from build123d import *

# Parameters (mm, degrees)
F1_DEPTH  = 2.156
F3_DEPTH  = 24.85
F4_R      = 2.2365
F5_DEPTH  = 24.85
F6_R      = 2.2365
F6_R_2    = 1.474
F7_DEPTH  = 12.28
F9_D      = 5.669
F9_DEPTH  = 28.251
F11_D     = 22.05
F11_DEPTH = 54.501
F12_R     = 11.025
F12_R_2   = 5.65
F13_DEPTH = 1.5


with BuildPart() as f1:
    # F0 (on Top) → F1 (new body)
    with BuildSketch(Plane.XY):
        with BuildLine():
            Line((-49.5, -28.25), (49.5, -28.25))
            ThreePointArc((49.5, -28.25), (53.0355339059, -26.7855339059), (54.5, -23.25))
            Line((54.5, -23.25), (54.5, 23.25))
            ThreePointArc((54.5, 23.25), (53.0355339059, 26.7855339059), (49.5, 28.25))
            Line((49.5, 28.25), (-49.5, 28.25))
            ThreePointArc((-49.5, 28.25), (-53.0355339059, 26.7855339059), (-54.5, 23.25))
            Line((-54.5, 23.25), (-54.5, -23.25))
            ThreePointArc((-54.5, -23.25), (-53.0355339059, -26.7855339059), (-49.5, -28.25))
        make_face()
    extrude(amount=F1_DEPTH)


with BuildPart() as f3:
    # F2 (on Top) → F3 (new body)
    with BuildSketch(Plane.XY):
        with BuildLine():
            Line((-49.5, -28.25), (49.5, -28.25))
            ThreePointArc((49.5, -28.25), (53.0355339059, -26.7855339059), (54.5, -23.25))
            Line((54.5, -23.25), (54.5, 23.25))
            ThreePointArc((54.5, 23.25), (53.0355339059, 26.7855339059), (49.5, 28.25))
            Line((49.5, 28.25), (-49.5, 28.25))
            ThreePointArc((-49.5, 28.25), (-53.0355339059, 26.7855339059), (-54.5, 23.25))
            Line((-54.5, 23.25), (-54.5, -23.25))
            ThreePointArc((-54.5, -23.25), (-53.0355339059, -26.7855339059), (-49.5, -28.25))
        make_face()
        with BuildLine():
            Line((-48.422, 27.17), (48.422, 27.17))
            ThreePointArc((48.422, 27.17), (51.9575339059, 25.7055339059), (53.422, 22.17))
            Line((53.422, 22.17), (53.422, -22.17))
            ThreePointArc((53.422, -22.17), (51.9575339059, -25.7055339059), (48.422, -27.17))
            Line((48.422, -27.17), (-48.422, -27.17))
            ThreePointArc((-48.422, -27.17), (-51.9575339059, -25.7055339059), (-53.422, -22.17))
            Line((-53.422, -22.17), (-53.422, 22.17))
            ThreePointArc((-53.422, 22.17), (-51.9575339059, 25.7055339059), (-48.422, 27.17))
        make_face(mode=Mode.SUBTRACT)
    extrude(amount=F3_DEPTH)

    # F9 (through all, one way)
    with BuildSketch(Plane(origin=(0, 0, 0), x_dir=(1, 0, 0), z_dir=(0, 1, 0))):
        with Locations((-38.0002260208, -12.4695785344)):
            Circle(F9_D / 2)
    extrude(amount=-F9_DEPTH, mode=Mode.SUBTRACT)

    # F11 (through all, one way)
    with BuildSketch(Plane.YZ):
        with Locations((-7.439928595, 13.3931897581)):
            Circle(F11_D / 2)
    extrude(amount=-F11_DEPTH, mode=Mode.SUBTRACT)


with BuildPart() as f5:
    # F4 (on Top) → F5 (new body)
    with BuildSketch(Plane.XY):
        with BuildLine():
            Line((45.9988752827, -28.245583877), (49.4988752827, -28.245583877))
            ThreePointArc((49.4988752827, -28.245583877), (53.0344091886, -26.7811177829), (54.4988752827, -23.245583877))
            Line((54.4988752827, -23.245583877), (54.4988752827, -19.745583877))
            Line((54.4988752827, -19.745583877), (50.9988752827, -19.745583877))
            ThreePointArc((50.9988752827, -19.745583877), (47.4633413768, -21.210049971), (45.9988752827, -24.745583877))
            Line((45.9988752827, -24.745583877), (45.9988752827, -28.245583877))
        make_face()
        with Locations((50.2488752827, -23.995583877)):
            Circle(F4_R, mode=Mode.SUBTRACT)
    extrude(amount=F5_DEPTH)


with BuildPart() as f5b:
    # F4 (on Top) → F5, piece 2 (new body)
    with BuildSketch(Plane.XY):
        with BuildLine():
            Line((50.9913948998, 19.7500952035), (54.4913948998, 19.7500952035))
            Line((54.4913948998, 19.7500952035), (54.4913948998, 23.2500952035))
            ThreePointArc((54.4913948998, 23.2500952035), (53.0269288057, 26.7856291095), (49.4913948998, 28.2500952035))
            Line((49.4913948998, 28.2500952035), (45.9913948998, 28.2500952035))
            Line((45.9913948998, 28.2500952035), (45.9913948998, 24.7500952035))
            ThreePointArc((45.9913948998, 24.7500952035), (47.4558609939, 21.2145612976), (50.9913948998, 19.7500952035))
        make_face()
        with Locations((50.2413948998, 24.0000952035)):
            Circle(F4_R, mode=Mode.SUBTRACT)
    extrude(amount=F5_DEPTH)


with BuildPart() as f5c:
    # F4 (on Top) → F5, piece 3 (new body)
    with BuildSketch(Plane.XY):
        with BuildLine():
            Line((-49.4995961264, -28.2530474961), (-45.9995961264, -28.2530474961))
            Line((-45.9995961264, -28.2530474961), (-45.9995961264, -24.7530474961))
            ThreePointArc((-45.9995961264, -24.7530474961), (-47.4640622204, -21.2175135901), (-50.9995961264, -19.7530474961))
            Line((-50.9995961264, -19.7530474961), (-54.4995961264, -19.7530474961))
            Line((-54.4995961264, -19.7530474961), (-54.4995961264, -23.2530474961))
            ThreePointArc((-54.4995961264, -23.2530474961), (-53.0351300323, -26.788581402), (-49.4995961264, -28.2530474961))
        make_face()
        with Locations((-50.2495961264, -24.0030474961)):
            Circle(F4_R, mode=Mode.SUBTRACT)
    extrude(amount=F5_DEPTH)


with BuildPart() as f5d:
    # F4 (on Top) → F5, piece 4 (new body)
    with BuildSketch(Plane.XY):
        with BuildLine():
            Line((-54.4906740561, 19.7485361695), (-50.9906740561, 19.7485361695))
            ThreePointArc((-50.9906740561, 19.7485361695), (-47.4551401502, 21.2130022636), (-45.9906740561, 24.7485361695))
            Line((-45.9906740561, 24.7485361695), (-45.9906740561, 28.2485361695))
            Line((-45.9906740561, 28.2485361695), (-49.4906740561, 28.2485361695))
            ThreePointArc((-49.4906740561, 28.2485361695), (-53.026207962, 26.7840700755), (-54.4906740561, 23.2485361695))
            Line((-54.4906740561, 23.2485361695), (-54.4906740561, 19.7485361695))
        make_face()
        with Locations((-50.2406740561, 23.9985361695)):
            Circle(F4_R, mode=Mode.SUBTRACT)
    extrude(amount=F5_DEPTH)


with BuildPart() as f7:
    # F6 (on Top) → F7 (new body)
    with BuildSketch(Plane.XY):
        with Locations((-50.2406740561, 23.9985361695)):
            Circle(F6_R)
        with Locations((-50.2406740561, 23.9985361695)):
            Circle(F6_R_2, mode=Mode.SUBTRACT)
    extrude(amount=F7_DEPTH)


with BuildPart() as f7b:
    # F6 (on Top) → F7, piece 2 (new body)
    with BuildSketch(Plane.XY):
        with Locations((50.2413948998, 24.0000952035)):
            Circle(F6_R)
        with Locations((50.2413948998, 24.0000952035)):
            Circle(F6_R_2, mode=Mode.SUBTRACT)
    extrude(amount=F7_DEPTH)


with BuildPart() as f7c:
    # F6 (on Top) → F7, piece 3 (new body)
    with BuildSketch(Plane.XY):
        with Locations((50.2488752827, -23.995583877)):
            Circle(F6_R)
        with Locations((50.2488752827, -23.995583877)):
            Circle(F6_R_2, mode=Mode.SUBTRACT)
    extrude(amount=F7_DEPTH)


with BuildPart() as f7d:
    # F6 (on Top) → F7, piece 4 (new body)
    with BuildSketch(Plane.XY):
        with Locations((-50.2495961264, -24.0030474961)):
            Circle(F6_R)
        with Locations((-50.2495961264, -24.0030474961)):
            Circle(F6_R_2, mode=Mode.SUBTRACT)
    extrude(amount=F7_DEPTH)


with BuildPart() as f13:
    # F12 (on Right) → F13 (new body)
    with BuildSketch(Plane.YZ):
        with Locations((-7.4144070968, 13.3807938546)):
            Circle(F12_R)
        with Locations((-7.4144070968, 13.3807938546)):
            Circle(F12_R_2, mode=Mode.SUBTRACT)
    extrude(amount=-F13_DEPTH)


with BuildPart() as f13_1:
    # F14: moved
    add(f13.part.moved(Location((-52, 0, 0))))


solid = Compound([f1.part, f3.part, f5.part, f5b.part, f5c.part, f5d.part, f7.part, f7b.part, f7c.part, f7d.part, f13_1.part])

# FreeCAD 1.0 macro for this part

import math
import FreeCAD as App
import Part
import Sketcher
from FreeCAD import Vector
Q = App.Units.Quantity

doc = App.newDocument("Part")
body = doc.addObject("PartDesign::Body", "Body")

sketch1 = body.newObject("Sketcher::SketchObject", "Sketch")
sketch1.AttachmentSupport = (doc.getObject("XY_Plane"), [""])
sketch1.MapMode = "FlatFace"
sketch1.addGeometry([
    Part.LineSegment(Vector(-49.5, -28.25, 0), Vector(49.5, -28.25, 0)),
    Part.ArcOfCircle(Part.Circle(Vector(49.5, -23.25, 0), Vector(0, 0, 1), 5), math.radians(-90), math.radians(0)),
    Part.LineSegment(Vector(54.5, -23.25, 0), Vector(54.5, 23.25, 0)),
    Part.ArcOfCircle(Part.Circle(Vector(49.5, 23.25, 0), Vector(0, 0, 1), 5), math.radians(0), math.radians(90)),
    Part.LineSegment(Vector(49.5, 28.25, 0), Vector(-49.5, 28.25, 0)),
    Part.ArcOfCircle(Part.Circle(Vector(-49.5, 23.25, 0), Vector(0, 0, 1), 5), math.radians(90), math.radians(180)),
    Part.LineSegment(Vector(-54.5, 23.25, 0), Vector(-54.5, -23.25, 0)),
    Part.ArcOfCircle(Part.Circle(Vector(-49.5, -23.25, 0), Vector(0, 0, 1), 5), math.radians(180), math.radians(270)),
], False)
sketch1.addConstraint([
    Sketcher.Constraint("Tangent", 0, 2, 1, 1),
    Sketcher.Constraint("Tangent", 1, 2, 2, 1),
    Sketcher.Constraint("Tangent", 2, 2, 3, 1),
    Sketcher.Constraint("Tangent", 3, 2, 4, 1),
    Sketcher.Constraint("Tangent", 4, 2, 5, 1),
    Sketcher.Constraint("Tangent", 5, 2, 6, 1),
    Sketcher.Constraint("Tangent", 6, 2, 7, 1),
    Sketcher.Constraint("Tangent", 7, 2, 0, 1),
    Sketcher.Constraint("Horizontal", 0),
    Sketcher.Constraint("Vertical", 2),
    Sketcher.Constraint("Horizontal", 4),
    Sketcher.Constraint("Vertical", 6),
    Sketcher.Constraint("Equal", 1, 3),
    Sketcher.Constraint("Equal", 3, 5),
    Sketcher.Constraint("Equal", 5, 7),
    Sketcher.Constraint("Symmetric", 1, 3, 5, 3, -1, 1),
    Sketcher.Constraint("Radius", 1, Q("5 mm")),
    Sketcher.Constraint("DistanceX", 0, 1, 0, 2, Q("99 mm")),
    Sketcher.Constraint("DistanceY", 2, 1, 2, 2, Q("46.5 mm")),
])
pad1 = body.newObject("PartDesign::Pad", "Pad")
pad1.Profile = sketch1
pad1.Length = 2.156
body2 = doc.addObject("PartDesign::Body", "Body001")

sketch2 = body2.newObject("Sketcher::SketchObject", "Sketch001")
sketch2.AttachmentSupport = (doc.getObject("XY_Plane001"), [""])
sketch2.MapMode = "FlatFace"
sketch2.addGeometry([
    Part.LineSegment(Vector(-49.5, -28.25, 0), Vector(49.5, -28.25, 0)),
    Part.ArcOfCircle(Part.Circle(Vector(49.5, -23.25, 0), Vector(0, 0, 1), 5), math.radians(-90), math.radians(0)),
    Part.LineSegment(Vector(54.5, -23.25, 0), Vector(54.5, 23.25, 0)),
    Part.ArcOfCircle(Part.Circle(Vector(49.5, 23.25, 0), Vector(0, 0, 1), 5), math.radians(0), math.radians(90)),
    Part.LineSegment(Vector(49.5, 28.25, 0), Vector(-49.5, 28.25, 0)),
    Part.ArcOfCircle(Part.Circle(Vector(-49.5, 23.25, 0), Vector(0, 0, 1), 5), math.radians(90), math.radians(180)),
    Part.LineSegment(Vector(-54.5, 23.25, 0), Vector(-54.5, -23.25, 0)),
    Part.ArcOfCircle(Part.Circle(Vector(-49.5, -23.25, 0), Vector(0, 0, 1), 5), math.radians(180), math.radians(270)),
    Part.ArcOfCircle(Part.Circle(Vector(-48.422, 22.17, 0), Vector(0, 0, 1), 5), math.radians(90), math.radians(180)),
    Part.LineSegment(Vector(-48.422, 27.17, 0), Vector(48.422, 27.17, 0)),
    Part.ArcOfCircle(Part.Circle(Vector(48.422, 22.17, 0), Vector(0, 0, 1), 5), math.radians(0), math.radians(90)),
    Part.LineSegment(Vector(53.422, 22.17, 0), Vector(53.422, -22.17, 0)),
    Part.ArcOfCircle(Part.Circle(Vector(48.422, -22.17, 0), Vector(0, 0, 1), 5), math.radians(-90), math.radians(0)),
    Part.LineSegment(Vector(48.422, -27.17, 0), Vector(-48.422, -27.17, 0)),
    Part.ArcOfCircle(Part.Circle(Vector(-48.422, -22.17, 0), Vector(0, 0, 1), 5), math.radians(180), math.radians(270)),
    Part.LineSegment(Vector(-53.422, -22.17, 0), Vector(-53.422, 22.17, 0)),
], False)
sketch2.addConstraint([
    Sketcher.Constraint("Tangent", 0, 2, 1, 1),
    Sketcher.Constraint("Tangent", 1, 2, 2, 1),
    Sketcher.Constraint("Tangent", 2, 2, 3, 1),
    Sketcher.Constraint("Tangent", 3, 2, 4, 1),
    Sketcher.Constraint("Tangent", 4, 2, 5, 1),
    Sketcher.Constraint("Tangent", 5, 2, 6, 1),
    Sketcher.Constraint("Tangent", 6, 2, 7, 1),
    Sketcher.Constraint("Tangent", 7, 2, 0, 1),
    Sketcher.Constraint("Tangent", 8, 1, 9, 1),
    Sketcher.Constraint("Tangent", 9, 2, 10, 2),
    Sketcher.Constraint("Tangent", 10, 1, 11, 1),
    Sketcher.Constraint("Tangent", 11, 2, 12, 2),
    Sketcher.Constraint("Tangent", 12, 1, 13, 1),
    Sketcher.Constraint("Tangent", 13, 2, 14, 2),
    Sketcher.Constraint("Tangent", 14, 1, 15, 1),
    Sketcher.Constraint("Tangent", 15, 2, 8, 2),
    Sketcher.Constraint("Horizontal", 0),
    Sketcher.Constraint("Vertical", 2),
    Sketcher.Constraint("Horizontal", 4),
    Sketcher.Constraint("Vertical", 6),
    Sketcher.Constraint("Horizontal", 9),
    Sketcher.Constraint("Vertical", 11),
    Sketcher.Constraint("Horizontal", 13),
    Sketcher.Constraint("Vertical", 15),
    Sketcher.Constraint("Equal", 1, 3),
    Sketcher.Constraint("Equal", 3, 5),
    Sketcher.Constraint("Equal", 5, 7),
    Sketcher.Constraint("Equal", 7, 8),
    Sketcher.Constraint("Equal", 8, 10),
    Sketcher.Constraint("Equal", 10, 12),
    Sketcher.Constraint("Equal", 12, 14),
    Sketcher.Constraint("Symmetric", 1, 3, 5, 3, -1, 1),
    Sketcher.Constraint("Symmetric", 8, 3, 12, 3, -1, 1),
    Sketcher.Constraint("Radius", 1, Q("5 mm")),
    Sketcher.Constraint("DistanceX", 0, 1, 0, 2, Q("99 mm")),
    Sketcher.Constraint("DistanceY", 2, 1, 2, 2, Q("46.5 mm")),
    Sketcher.Constraint("DistanceY", 11, 2, 11, 1, Q("44.34 mm")),
    Sketcher.Constraint("DistanceX", 9, 1, 9, 2, Q("96.844 mm")),
])
pad2 = body2.newObject("PartDesign::Pad", "Pad001")
pad2.Profile = sketch2
pad2.Length = 24.85

sketch3 = body2.newObject("Sketcher::SketchObject", "Sketch002")
sketch3.AttachmentSupport = (doc.getObject("XZ_Plane001"), [""])
sketch3.MapMode = "FlatFace"
sketch3.addGeometry(Part.Circle(Vector(-38.000226, 12.469579, 0), Vector(0, 0, 1), 2.8345), False)
sketch3.addConstraint([
    Sketcher.Constraint("Diameter", 0, Q("5.669 mm")),
    Sketcher.Constraint("DistanceY", -1, 1, 0, 3, Q("12.469579 mm")),
    Sketcher.Constraint("DistanceX", 0, 3, -1, 1, Q("38.000226 mm")),
])
pocket1 = body2.newObject("PartDesign::Pocket", "Pocket")
pocket1.Profile = sketch3
pocket1.Type = "ThroughAll"
pocket1.Reversed = True

sketch4 = body2.newObject("Sketcher::SketchObject", "Sketch003")
sketch4.AttachmentSupport = (doc.getObject("YZ_Plane001"), [""])
sketch4.MapMode = "FlatFace"
sketch4.addGeometry(Part.Circle(Vector(-7.439929, 13.39319, 0), Vector(0, 0, 1), 11.025), False)
sketch4.addConstraint([
    Sketcher.Constraint("Diameter", 0, Q("22.05 mm")),
    Sketcher.Constraint("DistanceX", 0, 3, -1, 1, Q("7.439929 mm")),
    Sketcher.Constraint("DistanceY", -1, 1, 0, 3, Q("13.39319 mm")),
])
pocket2 = body2.newObject("PartDesign::Pocket", "Pocket001")
pocket2.Profile = sketch4
pocket2.Type = "ThroughAll"
body3 = doc.addObject("PartDesign::Body", "Body002")

sketch5 = body3.newObject("Sketcher::SketchObject", "Sketch004")
sketch5.AttachmentSupport = (doc.getObject("XY_Plane002"), [""])
sketch5.MapMode = "FlatFace"
sketch5.addGeometry([
    Part.LineSegment(Vector(45.998875, -28.245584, 0), Vector(49.498875, -28.245584, 0)),
    Part.ArcOfCircle(Part.Circle(Vector(49.498875, -23.245584, 0), Vector(0, 0, 1), 5), math.radians(-90), math.radians(0)),
    Part.LineSegment(Vector(54.498875, -23.245584, 0), Vector(54.498875, -19.745584, 0)),
    Part.LineSegment(Vector(54.498875, -19.745584, 0), Vector(50.998875, -19.745584, 0)),
    Part.ArcOfCircle(Part.Circle(Vector(50.998875, -24.745584, 0), Vector(0, 0, 1), 5), math.radians(90), math.radians(180)),
    Part.LineSegment(Vector(45.998875, -24.745584, 0), Vector(45.998875, -28.245584, 0)),
    Part.Circle(Vector(50.248875, -23.995584, 0), Vector(0, 0, 1), 2.2365),
], False)
sketch5.addConstraint([
    Sketcher.Constraint("Tangent", 0, 2, 1, 1),
    Sketcher.Constraint("Tangent", 1, 2, 2, 1),
    Sketcher.Constraint("Coincident", 2, 2, 3, 1),
    Sketcher.Constraint("Tangent", 3, 2, 4, 1),
    Sketcher.Constraint("Tangent", 4, 2, 5, 1),
    Sketcher.Constraint("Coincident", 5, 2, 0, 1),
    Sketcher.Constraint("Horizontal", 0),
    Sketcher.Constraint("Vertical", 2),
    Sketcher.Constraint("Horizontal", 3),
    Sketcher.Constraint("Vertical", 5),
    Sketcher.Constraint("Equal", 1, 4),
    Sketcher.Constraint("Equal", 3, 2),
    Sketcher.Constraint("Radius", 1, Q("5 mm")),
    Sketcher.Constraint("Diameter", 6, Q("4.473 mm")),
    Sketcher.Constraint("DistanceX", 0, 1, 0, 2, Q("3.5 mm")),
    Sketcher.Constraint("DistanceX", 1, 3, 6, 3, Q("0.75 mm")),
    Sketcher.Constraint("DistanceY", 6, 3, 1, 3, Q("0.75 mm")),
    Sketcher.Constraint("DistanceX", -1, 1, 1, 3, Q("49.498875 mm")),
    Sketcher.Constraint("DistanceY", 1, 3, -1, 1, Q("23.245584 mm")),
])
pad3 = body3.newObject("PartDesign::Pad", "Pad002")
pad3.Profile = sketch5
pad3.Length = 24.85
body4 = doc.addObject("PartDesign::Body", "Body003")

sketch6 = body4.newObject("Sketcher::SketchObject", "Sketch005")
sketch6.AttachmentSupport = (doc.getObject("XY_Plane003"), [""])
sketch6.MapMode = "FlatFace"
sketch6.addGeometry([
    Part.LineSegment(Vector(50.991395, 19.750095, 0), Vector(54.491395, 19.750095, 0)),
    Part.LineSegment(Vector(54.491395, 19.750095, 0), Vector(54.491395, 23.250095, 0)),
    Part.ArcOfCircle(Part.Circle(Vector(49.491395, 23.250095, 0), Vector(0, 0, 1), 5), math.radians(0), math.radians(90)),
    Part.LineSegment(Vector(49.491395, 28.250095, 0), Vector(45.991395, 28.250095, 0)),
    Part.LineSegment(Vector(45.991395, 28.250095, 0), Vector(45.991395, 24.750095, 0)),
    Part.ArcOfCircle(Part.Circle(Vector(50.991395, 24.750095, 0), Vector(0, 0, 1), 5), math.radians(-180), math.radians(-90)),
    Part.Circle(Vector(50.241395, 24.000095, 0), Vector(0, 0, 1), 2.2365),
], False)
sketch6.addConstraint([
    Sketcher.Constraint("Coincident", 0, 2, 1, 1),
    Sketcher.Constraint("Tangent", 1, 2, 2, 1),
    Sketcher.Constraint("Tangent", 2, 2, 3, 1),
    Sketcher.Constraint("Coincident", 3, 2, 4, 1),
    Sketcher.Constraint("Tangent", 4, 2, 5, 1),
    Sketcher.Constraint("Tangent", 5, 2, 0, 1),
    Sketcher.Constraint("Horizontal", 0),
    Sketcher.Constraint("Vertical", 1),
    Sketcher.Constraint("Horizontal", 3),
    Sketcher.Constraint("Vertical", 4),
    Sketcher.Constraint("Equal", 2, 5),
    Sketcher.Constraint("Equal", 3, 1),
    Sketcher.Constraint("Radius", 2, Q("5 mm")),
    Sketcher.Constraint("Diameter", 6, Q("4.473 mm")),
    Sketcher.Constraint("DistanceX", 0, 1, 0, 2, Q("3.5 mm")),
    Sketcher.Constraint("DistanceX", 2, 3, 6, 3, Q("0.75 mm")),
    Sketcher.Constraint("DistanceY", 2, 3, 6, 3, Q("0.75 mm")),
    Sketcher.Constraint("DistanceX", -1, 1, 2, 3, Q("49.491395 mm")),
    Sketcher.Constraint("DistanceY", -1, 1, 2, 3, Q("23.250095 mm")),
])
pad4 = body4.newObject("PartDesign::Pad", "Pad003")
pad4.Profile = sketch6
pad4.Length = 24.85
body5 = doc.addObject("PartDesign::Body", "Body004")

sketch7 = body5.newObject("Sketcher::SketchObject", "Sketch006")
sketch7.AttachmentSupport = (doc.getObject("XY_Plane004"), [""])
sketch7.MapMode = "FlatFace"
sketch7.addGeometry([
    Part.LineSegment(Vector(-49.499596, -28.253047, 0), Vector(-45.999596, -28.253047, 0)),
    Part.LineSegment(Vector(-45.999596, -28.253047, 0), Vector(-45.999596, -24.753047, 0)),
    Part.ArcOfCircle(Part.Circle(Vector(-50.999596, -24.753047, 0), Vector(0, 0, 1), 5), math.radians(0), math.radians(90)),
    Part.LineSegment(Vector(-50.999596, -19.753047, 0), Vector(-54.499596, -19.753047, 0)),
    Part.LineSegment(Vector(-54.499596, -19.753047, 0), Vector(-54.499596, -23.253047, 0)),
    Part.ArcOfCircle(Part.Circle(Vector(-49.499596, -23.253047, 0), Vector(0, 0, 1), 5), math.radians(180), math.radians(270)),
    Part.Circle(Vector(-50.249596, -24.003047, 0), Vector(0, 0, 1), 2.2365),
], False)
sketch7.addConstraint([
    Sketcher.Constraint("Coincident", 0, 2, 1, 1),
    Sketcher.Constraint("Tangent", 1, 2, 2, 1),
    Sketcher.Constraint("Tangent", 2, 2, 3, 1),
    Sketcher.Constraint("Coincident", 3, 2, 4, 1),
    Sketcher.Constraint("Tangent", 4, 2, 5, 1),
    Sketcher.Constraint("Tangent", 5, 2, 0, 1),
    Sketcher.Constraint("Horizontal", 0),
    Sketcher.Constraint("Vertical", 1),
    Sketcher.Constraint("Horizontal", 3),
    Sketcher.Constraint("Vertical", 4),
    Sketcher.Constraint("Equal", 2, 5),
    Sketcher.Constraint("Equal", 3, 1),
    Sketcher.Constraint("Radius", 2, Q("5 mm")),
    Sketcher.Constraint("Diameter", 6, Q("4.473 mm")),
    Sketcher.Constraint("DistanceX", 0, 1, 0, 2, Q("3.5 mm")),
    Sketcher.Constraint("DistanceX", 2, 3, 6, 3, Q("0.75 mm")),
    Sketcher.Constraint("DistanceY", 2, 3, 6, 3, Q("0.75 mm")),
    Sketcher.Constraint("DistanceX", 2, 3, -1, 1, Q("50.999596 mm")),
    Sketcher.Constraint("DistanceY", 2, 3, -1, 1, Q("24.753047 mm")),
])
pad5 = body5.newObject("PartDesign::Pad", "Pad004")
pad5.Profile = sketch7
pad5.Length = 24.85
body6 = doc.addObject("PartDesign::Body", "Body005")

sketch8 = body6.newObject("Sketcher::SketchObject", "Sketch007")
sketch8.AttachmentSupport = (doc.getObject("XY_Plane005"), [""])
sketch8.MapMode = "FlatFace"
sketch8.addGeometry([
    Part.LineSegment(Vector(-54.490674, 19.748536, 0), Vector(-50.990674, 19.748536, 0)),
    Part.ArcOfCircle(Part.Circle(Vector(-50.990674, 24.748536, 0), Vector(0, 0, 1), 5), math.radians(-90), math.radians(0)),
    Part.LineSegment(Vector(-45.990674, 24.748536, 0), Vector(-45.990674, 28.248536, 0)),
    Part.LineSegment(Vector(-45.990674, 28.248536, 0), Vector(-49.490674, 28.248536, 0)),
    Part.ArcOfCircle(Part.Circle(Vector(-49.490674, 23.248536, 0), Vector(0, 0, 1), 5), math.radians(90), math.radians(180)),
    Part.LineSegment(Vector(-54.490674, 23.248536, 0), Vector(-54.490674, 19.748536, 0)),
    Part.Circle(Vector(-50.240674, 23.998536, 0), Vector(0, 0, 1), 2.2365),
], False)
sketch8.addConstraint([
    Sketcher.Constraint("Tangent", 0, 2, 1, 1),
    Sketcher.Constraint("Tangent", 1, 2, 2, 1),
    Sketcher.Constraint("Coincident", 2, 2, 3, 1),
    Sketcher.Constraint("Tangent", 3, 2, 4, 1),
    Sketcher.Constraint("Tangent", 4, 2, 5, 1),
    Sketcher.Constraint("Coincident", 5, 2, 0, 1),
    Sketcher.Constraint("Horizontal", 0),
    Sketcher.Constraint("Vertical", 2),
    Sketcher.Constraint("Horizontal", 3),
    Sketcher.Constraint("Vertical", 5),
    Sketcher.Constraint("Equal", 1, 4),
    Sketcher.Constraint("Equal", 3, 2),
    Sketcher.Constraint("Radius", 1, Q("5 mm")),
    Sketcher.Constraint("Diameter", 6, Q("4.473 mm")),
    Sketcher.Constraint("DistanceX", 0, 1, 0, 2, Q("3.5 mm")),
    Sketcher.Constraint("DistanceX", 6, 3, 4, 3, Q("0.75 mm")),
    Sketcher.Constraint("DistanceY", 4, 3, 6, 3, Q("0.75 mm")),
    Sketcher.Constraint("DistanceX", 1, 3, -1, 1, Q("50.990674 mm")),
    Sketcher.Constraint("DistanceY", -1, 1, 1, 3, Q("24.748536 mm")),
])
pad6 = body6.newObject("PartDesign::Pad", "Pad005")
pad6.Profile = sketch8
pad6.Length = 24.85
body7 = doc.addObject("PartDesign::Body", "Body006")

sketch9 = body7.newObject("Sketcher::SketchObject", "Sketch008")
sketch9.AttachmentSupport = (doc.getObject("XY_Plane006"), [""])
sketch9.MapMode = "FlatFace"
sketch9.addGeometry([
    Part.Circle(Vector(-50.240674, 23.998536, 0), Vector(0, 0, 1), 2.2365),
    Part.Circle(Vector(-50.240674, 23.998536, 0), Vector(0, 0, 1), 1.474),
], False)
sketch9.addConstraint([
    Sketcher.Constraint("Coincident", 1, 3, 0, 3),
    Sketcher.Constraint("Diameter", 0, Q("4.473 mm")),
    Sketcher.Constraint("Diameter", 1, Q("2.948 mm")),
    Sketcher.Constraint("DistanceX", 0, 3, -1, 1, Q("50.240674 mm")),
    Sketcher.Constraint("DistanceY", -1, 1, 0, 3, Q("23.998536 mm")),
])
pad7 = body7.newObject("PartDesign::Pad", "Pad006")
pad7.Profile = sketch9
pad7.Length = 12.28
body8 = doc.addObject("PartDesign::Body", "Body007")

sketch10 = body8.newObject("Sketcher::SketchObject", "Sketch009")
sketch10.AttachmentSupport = (doc.getObject("XY_Plane007"), [""])
sketch10.MapMode = "FlatFace"
sketch10.addGeometry([
    Part.Circle(Vector(50.241395, 24.000095, 0), Vector(0, 0, 1), 2.2365),
    Part.Circle(Vector(50.241395, 24.000095, 0), Vector(0, 0, 1), 1.474),
], False)
sketch10.addConstraint([
    Sketcher.Constraint("Coincident", 1, 3, 0, 3),
    Sketcher.Constraint("Diameter", 0, Q("4.473 mm")),
    Sketcher.Constraint("Diameter", 1, Q("2.948 mm")),
    Sketcher.Constraint("DistanceX", -1, 1, 0, 3, Q("50.241395 mm")),
    Sketcher.Constraint("DistanceY", -1, 1, 0, 3, Q("24.000095 mm")),
])
pad8 = body8.newObject("PartDesign::Pad", "Pad007")
pad8.Profile = sketch10
pad8.Length = 12.28
body9 = doc.addObject("PartDesign::Body", "Body008")

sketch11 = body9.newObject("Sketcher::SketchObject", "Sketch010")
sketch11.AttachmentSupport = (doc.getObject("XY_Plane008"), [""])
sketch11.MapMode = "FlatFace"
sketch11.addGeometry([
    Part.Circle(Vector(50.248875, -23.995584, 0), Vector(0, 0, 1), 2.2365),
    Part.Circle(Vector(50.248875, -23.995584, 0), Vector(0, 0, 1), 1.474),
], False)
sketch11.addConstraint([
    Sketcher.Constraint("Coincident", 1, 3, 0, 3),
    Sketcher.Constraint("Diameter", 0, Q("4.473 mm")),
    Sketcher.Constraint("Diameter", 1, Q("2.948 mm")),
    Sketcher.Constraint("DistanceX", -1, 1, 0, 3, Q("50.248875 mm")),
    Sketcher.Constraint("DistanceY", 0, 3, -1, 1, Q("23.995584 mm")),
])
pad9 = body9.newObject("PartDesign::Pad", "Pad008")
pad9.Profile = sketch11
pad9.Length = 12.28
body10 = doc.addObject("PartDesign::Body", "Body009")

sketch12 = body10.newObject("Sketcher::SketchObject", "Sketch011")
sketch12.AttachmentSupport = (doc.getObject("XY_Plane009"), [""])
sketch12.MapMode = "FlatFace"
sketch12.addGeometry([
    Part.Circle(Vector(-50.249596, -24.003047, 0), Vector(0, 0, 1), 2.2365),
    Part.Circle(Vector(-50.249596, -24.003047, 0), Vector(0, 0, 1), 1.474),
], False)
sketch12.addConstraint([
    Sketcher.Constraint("Coincident", 1, 3, 0, 3),
    Sketcher.Constraint("Diameter", 0, Q("4.473 mm")),
    Sketcher.Constraint("Diameter", 1, Q("2.948 mm")),
    Sketcher.Constraint("DistanceX", 0, 3, -1, 1, Q("50.249596 mm")),
    Sketcher.Constraint("DistanceY", 0, 3, -1, 1, Q("24.003047 mm")),
])
pad10 = body10.newObject("PartDesign::Pad", "Pad009")
pad10.Profile = sketch12
pad10.Length = 12.28
body11 = doc.addObject("PartDesign::Body", "Body010")

sketch13 = body11.newObject("Sketcher::SketchObject", "Sketch012")
sketch13.AttachmentSupport = (doc.getObject("YZ_Plane010"), [""])
sketch13.MapMode = "FlatFace"
sketch13.addGeometry([
    Part.Circle(Vector(-7.414407, 13.380794, 0), Vector(0, 0, 1), 11.025),
    Part.Circle(Vector(-7.414407, 13.380794, 0), Vector(0, 0, 1), 5.65),
], False)
sketch13.addConstraint([
    Sketcher.Constraint("Coincident", 1, 3, 0, 3),
    Sketcher.Constraint("Diameter", 1, Q("11.3 mm")),
    Sketcher.Constraint("Diameter", 0, Q("22.05 mm")),
    Sketcher.Constraint("DistanceX", 0, 3, -1, 1, Q("7.414407 mm")),
    Sketcher.Constraint("DistanceY", -1, 1, 0, 3, Q("13.380794 mm")),
])
pad11 = body11.newObject("PartDesign::Pad", "Pad010")
pad11.Profile = sketch13
pad11.Length = 1.5
pad11.Reversed = True
body12 = doc.addObject("PartDesign::Body", "Body011")
doc.recompute()

body11.Placement = App.Placement(Vector(-52, 0, 0), App.Rotation(Vector(0, 0, 1), 0))
boolean = body12.newObject("PartDesign::Boolean", "Boolean")
boolean.Type = "Fuse"
boolean.addObjects([body11])

doc.recompute()
